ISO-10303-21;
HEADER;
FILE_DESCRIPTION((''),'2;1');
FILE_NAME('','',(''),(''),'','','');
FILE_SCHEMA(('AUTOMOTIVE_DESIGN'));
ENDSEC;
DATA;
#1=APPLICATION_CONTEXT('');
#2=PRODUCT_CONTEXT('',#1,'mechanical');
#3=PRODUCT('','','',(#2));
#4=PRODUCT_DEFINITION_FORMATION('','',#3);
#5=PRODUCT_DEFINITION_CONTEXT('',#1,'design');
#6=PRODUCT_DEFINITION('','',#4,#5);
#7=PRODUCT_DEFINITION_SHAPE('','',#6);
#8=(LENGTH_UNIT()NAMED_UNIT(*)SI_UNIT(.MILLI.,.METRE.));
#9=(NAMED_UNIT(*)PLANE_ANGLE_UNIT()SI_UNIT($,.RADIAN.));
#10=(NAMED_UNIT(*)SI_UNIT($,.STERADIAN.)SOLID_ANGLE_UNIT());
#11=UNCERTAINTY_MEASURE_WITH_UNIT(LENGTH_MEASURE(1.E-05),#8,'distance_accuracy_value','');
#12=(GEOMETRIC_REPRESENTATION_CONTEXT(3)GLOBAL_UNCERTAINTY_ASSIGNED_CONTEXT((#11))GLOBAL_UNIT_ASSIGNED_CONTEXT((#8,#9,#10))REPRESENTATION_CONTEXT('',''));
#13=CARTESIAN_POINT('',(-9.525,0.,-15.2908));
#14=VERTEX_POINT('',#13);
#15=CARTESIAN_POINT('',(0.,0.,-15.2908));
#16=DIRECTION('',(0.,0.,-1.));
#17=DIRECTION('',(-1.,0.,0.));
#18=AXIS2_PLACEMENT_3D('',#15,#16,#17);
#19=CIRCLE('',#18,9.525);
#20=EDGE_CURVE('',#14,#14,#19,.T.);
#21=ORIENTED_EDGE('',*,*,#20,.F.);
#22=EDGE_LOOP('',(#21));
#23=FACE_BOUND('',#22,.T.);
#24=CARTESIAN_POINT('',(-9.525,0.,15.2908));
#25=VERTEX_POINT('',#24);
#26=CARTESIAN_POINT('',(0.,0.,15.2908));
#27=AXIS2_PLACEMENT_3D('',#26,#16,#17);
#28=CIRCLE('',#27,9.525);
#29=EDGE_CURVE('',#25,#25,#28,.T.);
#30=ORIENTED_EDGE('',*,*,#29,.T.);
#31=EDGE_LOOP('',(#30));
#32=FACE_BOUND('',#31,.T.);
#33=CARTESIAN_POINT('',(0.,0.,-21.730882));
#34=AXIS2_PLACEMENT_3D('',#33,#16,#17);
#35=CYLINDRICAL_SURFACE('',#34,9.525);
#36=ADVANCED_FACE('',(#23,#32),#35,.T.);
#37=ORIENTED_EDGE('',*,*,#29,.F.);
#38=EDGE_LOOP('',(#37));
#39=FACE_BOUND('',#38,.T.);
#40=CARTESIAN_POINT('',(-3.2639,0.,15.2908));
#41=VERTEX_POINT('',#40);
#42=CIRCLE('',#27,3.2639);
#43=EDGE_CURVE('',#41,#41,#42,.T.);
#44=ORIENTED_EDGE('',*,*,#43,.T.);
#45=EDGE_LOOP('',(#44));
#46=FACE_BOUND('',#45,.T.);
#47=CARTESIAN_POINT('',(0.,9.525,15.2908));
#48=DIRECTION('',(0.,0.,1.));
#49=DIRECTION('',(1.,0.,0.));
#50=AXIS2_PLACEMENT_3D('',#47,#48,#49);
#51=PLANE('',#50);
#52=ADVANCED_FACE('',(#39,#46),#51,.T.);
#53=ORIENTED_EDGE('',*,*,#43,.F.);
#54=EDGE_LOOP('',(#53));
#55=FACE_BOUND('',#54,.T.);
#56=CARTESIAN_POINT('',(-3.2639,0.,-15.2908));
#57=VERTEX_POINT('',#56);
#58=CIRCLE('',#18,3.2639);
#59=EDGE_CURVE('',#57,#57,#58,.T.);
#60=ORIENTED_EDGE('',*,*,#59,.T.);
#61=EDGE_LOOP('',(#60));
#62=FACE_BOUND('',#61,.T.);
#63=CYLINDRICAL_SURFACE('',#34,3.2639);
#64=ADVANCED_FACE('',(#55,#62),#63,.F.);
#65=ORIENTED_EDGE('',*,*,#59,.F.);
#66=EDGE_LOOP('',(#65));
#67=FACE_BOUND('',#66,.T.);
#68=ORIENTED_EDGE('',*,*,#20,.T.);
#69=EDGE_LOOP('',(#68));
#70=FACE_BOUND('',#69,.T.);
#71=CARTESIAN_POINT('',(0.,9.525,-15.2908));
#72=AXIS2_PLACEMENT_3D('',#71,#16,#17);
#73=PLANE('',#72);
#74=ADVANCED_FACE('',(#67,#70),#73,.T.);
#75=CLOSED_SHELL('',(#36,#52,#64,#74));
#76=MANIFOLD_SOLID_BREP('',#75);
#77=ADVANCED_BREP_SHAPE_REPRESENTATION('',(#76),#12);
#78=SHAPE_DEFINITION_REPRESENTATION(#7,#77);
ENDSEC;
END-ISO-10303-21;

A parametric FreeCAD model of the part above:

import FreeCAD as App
import Part
import Sketcher
Q = App.Units.Quantity


def add_polygon(sketch, points):
    """Adds a closed chain of lines whose ends are joined by coincident constraints."""
    first, n = sketch.GeometryCount, len(points)
    for a, b in zip(points, points[1:] + points[:1]):
        sketch.addGeometry(Part.LineSegment(App.Vector(*a, 0), App.Vector(*b, 0)), False)
    for i in range(n):
        sketch.addConstraint(Sketcher.Constraint("Coincident", first + i, 2, first + (i + 1) % n, 1))

doc = App.newDocument("Part")
body = doc.addObject("PartDesign::Body", "Body")

sketch1 = doc.addObject("Sketcher::SketchObject", "Sketch")
body.addObject(sketch1)
sketch1.AttachmentSupport = (doc.YZ_Plane, [""])
sketch1.MapMode = "FlatFace"
add_polygon(sketch1, [(9.525, 15.2908), (3.2639, 15.2908), (3.2639, -15.2908), (9.525, -15.2908)])
sketch1.addConstraint([
    Sketcher.Constraint("Horizontal", 0),
    Sketcher.Constraint("Vertical", 1),
    Sketcher.Constraint("Horizontal", 2),
    Sketcher.Constraint("Vertical", 3),
    Sketcher.Constraint("DistanceY", 1, 2, 1, 1, Q("1.204 in")),
    Sketcher.Constraint("DistanceX", 0, 2, 0, 1, Q("0.2465 in")),
    Sketcher.Constraint("DistanceY", -1, 1, 0, 2, Q("0.602 in")),
    Sketcher.Constraint("DistanceX", -1, 1, 2, 2, Q("0.375 in")),
])
revolution = doc.addObject("PartDesign::Revolution", "Revolution")
body.addObject(revolution)
revolution.Profile = sketch1
revolution.ReferenceAxis = (sketch1, ["V_Axis"])
revolution.Angle = 360

doc.recompute()
